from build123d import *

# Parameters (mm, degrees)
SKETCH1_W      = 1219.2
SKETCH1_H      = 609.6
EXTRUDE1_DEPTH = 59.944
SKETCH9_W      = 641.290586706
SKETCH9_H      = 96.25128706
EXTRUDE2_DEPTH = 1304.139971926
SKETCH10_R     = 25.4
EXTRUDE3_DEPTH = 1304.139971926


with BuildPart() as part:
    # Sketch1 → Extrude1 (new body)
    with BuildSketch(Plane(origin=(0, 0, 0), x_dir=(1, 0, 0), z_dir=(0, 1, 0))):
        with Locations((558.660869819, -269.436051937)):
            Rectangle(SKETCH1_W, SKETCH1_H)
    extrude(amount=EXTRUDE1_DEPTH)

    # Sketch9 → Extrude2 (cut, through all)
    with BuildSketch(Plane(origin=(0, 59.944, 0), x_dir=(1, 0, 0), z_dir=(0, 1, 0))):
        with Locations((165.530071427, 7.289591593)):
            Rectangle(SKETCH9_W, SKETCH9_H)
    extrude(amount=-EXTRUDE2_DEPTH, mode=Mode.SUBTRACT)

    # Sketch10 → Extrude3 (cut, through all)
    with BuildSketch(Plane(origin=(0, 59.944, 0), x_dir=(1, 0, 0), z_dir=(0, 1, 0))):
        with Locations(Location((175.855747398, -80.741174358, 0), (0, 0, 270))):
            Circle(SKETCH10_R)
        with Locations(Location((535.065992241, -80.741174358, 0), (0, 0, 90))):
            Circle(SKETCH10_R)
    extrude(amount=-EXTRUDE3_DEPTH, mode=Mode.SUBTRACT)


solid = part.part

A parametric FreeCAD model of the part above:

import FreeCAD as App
import Part
import Sketcher
Q = App.Units.Quantity

doc = App.newDocument("Part")
body = doc.addObject("PartDesign::Body", "Body")

sketch1 = doc.addObject("Sketcher::SketchObject", "Sketch")
body.addObject(sketch1)
sketch1.AttachmentSupport = (doc.XZ_Plane, [""])
sketch1.MapMode = "FlatFace"
sketch1.addGeometry(Part.LineSegment(App.Vector(-51, -35, 0), App.Vector(-51, 574, 0)), False)
sketch1.addGeometry(Part.LineSegment(App.Vector(-51, 574, 0), App.Vector(1168, 574, 0)), False)
sketch1.addGeometry(Part.LineSegment(App.Vector(1168, 574, 0), App.Vector(1168, -35, 0)), False)
sketch1.addGeometry(Part.LineSegment(App.Vector(1168, -35, 0), App.Vector(-51, -35, 0)), False)
sketch1.addConstraint(Sketcher.Constraint("Coincident", 0, 2, 1, 1))
sketch1.addConstraint(Sketcher.Constraint("Coincident", 1, 2, 2, 1))
sketch1.addConstraint(Sketcher.Constraint("Coincident", 2, 2, 3, 1))
sketch1.addConstraint(Sketcher.Constraint("Coincident", 3, 2, 0, 1))
sketch1.addConstraint(Sketcher.Constraint("Vertical", 0))
sketch1.addConstraint(Sketcher.Constraint("Horizontal", 1))
sketch1.addConstraint(Sketcher.Constraint("Vertical", 2))
sketch1.addConstraint(Sketcher.Constraint("Horizontal", 3))
sketch1.addConstraint(Sketcher.Constraint("DistanceX", 1, 1, 1, 2, Q("48 in")))
sketch1.addConstraint(Sketcher.Constraint("DistanceY", 0, 1, 0, 2, Q("24 in")))
sketch1.addConstraint(Sketcher.Constraint("DistanceX", 0, 2, -1, 1, 50.93913))
sketch1.addConstraint(Sketcher.Constraint("DistanceY", -1, 1, 0, 2, 574.236052))
pad1 = doc.addObject("PartDesign::Pad", "Pad")
body.addObject(pad1)
pad1.Profile = sketch1
pad1.Length = Q("2.36 in")
pad1.Reversed = True

sketch2 = doc.addObject("Sketcher::SketchObject", "Sketch001")
body.addObject(sketch2)
sketch2.AttachmentSupport = (doc.XZ_Plane, [""])
sketch2.MapMode = "FlatFace"
sketch2.AttachmentOffset = App.Placement(App.Vector(0, 0, -2.36 * 25.4), App.Rotation())
sketch2.addGeometry(Part.LineSegment(App.Vector(-155, -55, 0), App.Vector(-155, 41, 0)), False)
sketch2.addGeometry(Part.LineSegment(App.Vector(-155, 41, 0), App.Vector(486, 41, 0)), False)
sketch2.addGeometry(Part.LineSegment(App.Vector(486, 41, 0), App.Vector(486, -55, 0)), False)
sketch2.addGeometry(Part.LineSegment(App.Vector(486, -55, 0), App.Vector(-155, -55, 0)), False)
sketch2.addConstraint(Sketcher.Constraint("Coincident", 0, 2, 1, 1))
sketch2.addConstraint(Sketcher.Constraint("Coincident", 1, 2, 2, 1))
sketch2.addConstraint(Sketcher.Constraint("Coincident", 2, 2, 3, 1))
sketch2.addConstraint(Sketcher.Constraint("Coincident", 3, 2, 0, 1))
sketch2.addConstraint(Sketcher.Constraint("Vertical", 0))
sketch2.addConstraint(Sketcher.Constraint("Horizontal", 1))
sketch2.addConstraint(Sketcher.Constraint("Vertical", 2))
sketch2.addConstraint(Sketcher.Constraint("Horizontal", 3))
sketch2.addConstraint(Sketcher.Constraint("DistanceX", 1, 1, 1, 2, 641.290587))
sketch2.addConstraint(Sketcher.Constraint("DistanceY", 0, 1, 0, 2, 96.251287))
sketch2.addConstraint(Sketcher.Constraint("DistanceX", 0, 2, -1, 1, 155.115222))
sketch2.addConstraint(Sketcher.Constraint("DistanceY", -1, 1, 0, 2, 40.836052))
pocket1 = doc.addObject("PartDesign::Pocket", "Pocket")
body.addObject(pocket1)
pocket1.Profile = sketch2
pocket1.Type = "ThroughAll"
pocket1.Reversed = True

sketch3 = doc.addObject("Sketcher::SketchObject", "Sketch002")
body.addObject(sketch3)
sketch3.AttachmentSupport = (doc.XZ_Plane, [""])
sketch3.MapMode = "FlatFace"
sketch3.AttachmentOffset = App.Placement(App.Vector(0, 0, -2.36 * 25.4), App.Rotation())
sketch3.addGeometry(Part.Circle(App.Vector(176, 81, 0), App.Vector(0, 0, 1), 25), False)
sketch3.addGeometry(Part.Circle(App.Vector(535, 81, 0), App.Vector(0, 0, 1), 25), False)
sketch3.addConstraint(Sketcher.Constraint("Equal", 0, 1))
sketch3.addConstraint(Sketcher.Constraint("Horizontal", 0, 3, 1, 3))
sketch3.addConstraint(Sketcher.Constraint("Diameter", 0, Q("2 in")))
sketch3.addConstraint(Sketcher.Constraint("DistanceX", -1, 1, 0, 3, 175.855747))
sketch3.addConstraint(Sketcher.Constraint("DistanceY", -1, 1, 0, 3, 80.741174))
sketch3.addConstraint(Sketcher.Constraint("DistanceX", -1, 1, 1, 3, 535.065992))
pocket2 = doc.addObject("PartDesign::Pocket", "Pocket001")
body.addObject(pocket2)
pocket2.Profile = sketch3
pocket2.Type = "ThroughAll"
pocket2.Reversed = True

doc.recompute()
